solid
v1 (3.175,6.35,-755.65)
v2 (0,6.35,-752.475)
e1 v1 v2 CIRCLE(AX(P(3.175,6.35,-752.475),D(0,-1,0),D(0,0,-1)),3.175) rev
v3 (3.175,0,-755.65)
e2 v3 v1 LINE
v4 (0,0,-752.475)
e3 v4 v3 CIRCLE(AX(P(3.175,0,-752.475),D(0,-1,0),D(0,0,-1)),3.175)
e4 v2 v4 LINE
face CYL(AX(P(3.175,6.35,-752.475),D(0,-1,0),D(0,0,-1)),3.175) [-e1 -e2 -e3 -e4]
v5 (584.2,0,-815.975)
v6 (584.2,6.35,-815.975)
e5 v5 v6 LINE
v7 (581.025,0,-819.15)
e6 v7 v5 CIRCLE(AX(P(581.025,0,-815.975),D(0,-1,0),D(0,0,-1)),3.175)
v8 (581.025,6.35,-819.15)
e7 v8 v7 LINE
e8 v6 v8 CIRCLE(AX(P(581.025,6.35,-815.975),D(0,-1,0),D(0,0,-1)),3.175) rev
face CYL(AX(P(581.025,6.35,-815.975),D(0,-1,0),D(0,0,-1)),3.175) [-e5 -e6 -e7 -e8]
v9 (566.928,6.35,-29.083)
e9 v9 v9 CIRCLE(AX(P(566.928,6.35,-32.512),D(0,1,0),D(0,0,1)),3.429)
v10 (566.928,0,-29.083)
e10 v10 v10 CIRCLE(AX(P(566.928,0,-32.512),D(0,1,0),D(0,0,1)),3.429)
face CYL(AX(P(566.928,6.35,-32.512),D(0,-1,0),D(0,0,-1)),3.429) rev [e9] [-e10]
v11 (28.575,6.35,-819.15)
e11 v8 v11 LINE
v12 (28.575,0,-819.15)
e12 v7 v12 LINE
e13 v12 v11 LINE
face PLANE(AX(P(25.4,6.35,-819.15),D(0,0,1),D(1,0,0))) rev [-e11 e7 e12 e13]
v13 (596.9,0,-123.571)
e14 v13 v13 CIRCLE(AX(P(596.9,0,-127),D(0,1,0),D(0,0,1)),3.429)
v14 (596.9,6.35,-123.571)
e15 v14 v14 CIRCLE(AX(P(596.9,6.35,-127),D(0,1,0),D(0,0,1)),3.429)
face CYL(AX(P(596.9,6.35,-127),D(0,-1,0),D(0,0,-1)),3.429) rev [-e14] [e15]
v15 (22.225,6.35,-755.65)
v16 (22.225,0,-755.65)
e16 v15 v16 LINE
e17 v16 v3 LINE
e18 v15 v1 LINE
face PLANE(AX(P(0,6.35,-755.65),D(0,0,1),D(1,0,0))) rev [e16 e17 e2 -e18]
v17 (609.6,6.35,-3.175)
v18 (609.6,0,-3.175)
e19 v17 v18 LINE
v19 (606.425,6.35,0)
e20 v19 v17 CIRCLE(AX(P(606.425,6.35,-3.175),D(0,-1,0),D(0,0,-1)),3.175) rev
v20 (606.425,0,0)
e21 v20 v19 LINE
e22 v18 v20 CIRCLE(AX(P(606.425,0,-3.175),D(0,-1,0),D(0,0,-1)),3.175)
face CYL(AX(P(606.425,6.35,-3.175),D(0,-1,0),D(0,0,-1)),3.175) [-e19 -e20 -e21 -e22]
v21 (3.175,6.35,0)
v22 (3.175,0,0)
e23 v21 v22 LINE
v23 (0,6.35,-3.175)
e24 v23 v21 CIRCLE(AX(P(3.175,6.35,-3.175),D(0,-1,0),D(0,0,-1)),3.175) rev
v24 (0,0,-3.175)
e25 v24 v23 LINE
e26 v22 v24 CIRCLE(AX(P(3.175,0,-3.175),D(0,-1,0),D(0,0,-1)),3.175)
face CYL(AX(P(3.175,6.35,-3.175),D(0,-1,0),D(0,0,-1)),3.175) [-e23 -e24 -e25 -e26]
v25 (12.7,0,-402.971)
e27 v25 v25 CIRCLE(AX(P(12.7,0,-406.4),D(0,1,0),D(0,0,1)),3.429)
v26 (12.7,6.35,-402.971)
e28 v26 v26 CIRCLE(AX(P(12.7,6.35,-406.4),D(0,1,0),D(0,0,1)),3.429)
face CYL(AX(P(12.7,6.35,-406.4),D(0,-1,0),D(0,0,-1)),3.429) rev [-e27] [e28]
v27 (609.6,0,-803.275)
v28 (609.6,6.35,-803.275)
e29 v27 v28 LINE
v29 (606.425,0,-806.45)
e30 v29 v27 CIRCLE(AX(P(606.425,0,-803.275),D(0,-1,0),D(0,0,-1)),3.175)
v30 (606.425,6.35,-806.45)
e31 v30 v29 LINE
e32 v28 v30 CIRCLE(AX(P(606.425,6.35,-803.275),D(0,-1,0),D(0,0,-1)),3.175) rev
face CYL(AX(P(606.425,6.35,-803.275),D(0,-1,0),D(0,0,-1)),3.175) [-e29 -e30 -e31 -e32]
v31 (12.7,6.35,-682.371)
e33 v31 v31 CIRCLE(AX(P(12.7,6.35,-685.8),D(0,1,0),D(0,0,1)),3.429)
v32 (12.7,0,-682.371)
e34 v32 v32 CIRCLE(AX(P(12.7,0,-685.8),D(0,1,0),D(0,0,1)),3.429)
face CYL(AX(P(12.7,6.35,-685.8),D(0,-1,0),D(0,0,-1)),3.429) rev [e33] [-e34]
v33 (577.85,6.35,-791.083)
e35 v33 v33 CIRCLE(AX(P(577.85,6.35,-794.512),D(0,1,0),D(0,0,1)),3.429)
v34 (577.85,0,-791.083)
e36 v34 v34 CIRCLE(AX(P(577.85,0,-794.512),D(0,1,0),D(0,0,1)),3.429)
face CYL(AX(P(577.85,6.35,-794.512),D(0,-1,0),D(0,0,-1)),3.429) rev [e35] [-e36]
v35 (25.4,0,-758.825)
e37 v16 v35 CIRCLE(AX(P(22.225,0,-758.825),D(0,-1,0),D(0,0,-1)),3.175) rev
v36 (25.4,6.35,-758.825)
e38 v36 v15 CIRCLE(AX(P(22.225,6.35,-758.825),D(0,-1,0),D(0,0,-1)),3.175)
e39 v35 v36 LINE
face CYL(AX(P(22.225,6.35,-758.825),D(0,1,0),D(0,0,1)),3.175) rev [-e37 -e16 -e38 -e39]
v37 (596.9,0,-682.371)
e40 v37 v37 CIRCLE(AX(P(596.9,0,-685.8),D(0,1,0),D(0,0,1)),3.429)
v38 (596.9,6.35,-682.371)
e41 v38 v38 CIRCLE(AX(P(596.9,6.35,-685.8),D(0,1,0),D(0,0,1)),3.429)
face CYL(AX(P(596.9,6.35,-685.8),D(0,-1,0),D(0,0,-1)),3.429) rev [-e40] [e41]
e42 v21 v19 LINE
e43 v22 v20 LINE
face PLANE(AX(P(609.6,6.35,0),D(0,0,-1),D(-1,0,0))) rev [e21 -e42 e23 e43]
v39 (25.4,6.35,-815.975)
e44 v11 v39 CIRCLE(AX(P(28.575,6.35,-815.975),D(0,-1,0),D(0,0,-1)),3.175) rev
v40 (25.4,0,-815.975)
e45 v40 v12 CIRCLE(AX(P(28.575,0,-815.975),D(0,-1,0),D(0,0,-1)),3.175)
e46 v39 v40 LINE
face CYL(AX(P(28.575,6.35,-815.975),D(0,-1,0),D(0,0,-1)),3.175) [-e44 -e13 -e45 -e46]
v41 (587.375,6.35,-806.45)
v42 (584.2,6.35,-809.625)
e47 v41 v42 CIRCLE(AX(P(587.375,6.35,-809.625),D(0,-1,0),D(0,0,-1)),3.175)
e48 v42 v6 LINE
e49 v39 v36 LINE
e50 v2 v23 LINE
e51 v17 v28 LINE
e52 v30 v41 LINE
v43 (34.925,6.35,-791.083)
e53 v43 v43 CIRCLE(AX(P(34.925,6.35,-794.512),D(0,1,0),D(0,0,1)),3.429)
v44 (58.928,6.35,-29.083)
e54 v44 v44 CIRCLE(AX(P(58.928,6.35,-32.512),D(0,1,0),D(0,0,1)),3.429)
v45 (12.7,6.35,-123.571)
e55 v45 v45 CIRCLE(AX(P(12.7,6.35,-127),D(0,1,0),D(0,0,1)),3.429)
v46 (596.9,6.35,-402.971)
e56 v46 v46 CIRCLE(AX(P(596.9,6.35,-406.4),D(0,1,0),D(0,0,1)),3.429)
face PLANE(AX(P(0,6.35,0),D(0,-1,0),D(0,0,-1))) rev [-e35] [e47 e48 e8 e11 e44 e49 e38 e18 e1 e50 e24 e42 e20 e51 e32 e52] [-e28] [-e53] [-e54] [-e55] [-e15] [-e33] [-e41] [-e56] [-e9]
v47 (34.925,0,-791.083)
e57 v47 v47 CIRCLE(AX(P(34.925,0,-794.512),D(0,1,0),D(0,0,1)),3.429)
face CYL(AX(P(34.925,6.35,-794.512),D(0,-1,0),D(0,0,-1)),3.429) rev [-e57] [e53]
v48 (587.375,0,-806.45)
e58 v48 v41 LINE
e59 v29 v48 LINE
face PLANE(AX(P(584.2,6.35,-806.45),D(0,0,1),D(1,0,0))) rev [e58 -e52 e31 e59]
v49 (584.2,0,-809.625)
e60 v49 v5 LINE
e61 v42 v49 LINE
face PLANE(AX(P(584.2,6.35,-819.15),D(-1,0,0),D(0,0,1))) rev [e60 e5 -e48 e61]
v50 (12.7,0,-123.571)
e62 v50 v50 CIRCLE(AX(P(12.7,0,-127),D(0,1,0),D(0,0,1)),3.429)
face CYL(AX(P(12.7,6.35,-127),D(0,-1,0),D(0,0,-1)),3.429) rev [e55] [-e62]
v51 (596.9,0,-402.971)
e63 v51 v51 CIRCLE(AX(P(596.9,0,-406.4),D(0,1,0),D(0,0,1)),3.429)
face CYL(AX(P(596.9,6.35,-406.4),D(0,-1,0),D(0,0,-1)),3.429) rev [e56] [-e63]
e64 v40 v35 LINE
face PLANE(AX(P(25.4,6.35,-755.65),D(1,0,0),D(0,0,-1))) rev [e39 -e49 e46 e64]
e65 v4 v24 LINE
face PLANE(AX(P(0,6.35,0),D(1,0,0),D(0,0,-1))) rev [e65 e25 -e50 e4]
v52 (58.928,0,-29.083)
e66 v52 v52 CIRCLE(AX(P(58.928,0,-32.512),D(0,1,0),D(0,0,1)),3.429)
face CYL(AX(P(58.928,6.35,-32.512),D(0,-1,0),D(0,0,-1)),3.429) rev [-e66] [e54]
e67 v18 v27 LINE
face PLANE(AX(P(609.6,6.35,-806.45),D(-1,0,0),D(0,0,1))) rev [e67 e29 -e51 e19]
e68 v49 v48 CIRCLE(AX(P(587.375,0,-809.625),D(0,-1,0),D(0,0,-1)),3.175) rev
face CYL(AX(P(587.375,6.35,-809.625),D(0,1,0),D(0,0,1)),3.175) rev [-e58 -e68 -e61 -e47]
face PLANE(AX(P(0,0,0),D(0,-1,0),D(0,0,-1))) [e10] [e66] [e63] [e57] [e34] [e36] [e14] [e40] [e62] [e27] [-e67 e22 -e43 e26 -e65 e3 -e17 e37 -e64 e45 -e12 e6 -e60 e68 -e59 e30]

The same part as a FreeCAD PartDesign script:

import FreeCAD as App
import Part
import Sketcher
from FreeCAD import Vector
Q = App.Units.Quantity


def edges_at(feature, points):
    """Names of the edges that pass closest to the given points."""
    edges = feature.Shape.Edges
    near = lambda p: min(range(len(edges)), key=lambda i: edges[i].distToShape(Part.Vertex(*p))[0])
    return sorted({f"Edge{near(p) + 1}" for p in points})

doc = App.newDocument("Part")
params = doc.addObject("Spreadsheet::Sheet", "Params")
for row, (alias, value) in enumerate([
    ("sketch1_diameter", "0.27 in"),
    ("sketch1_width", "24 in"),
    ("sketch1_width2", "1 in"),
    ("sketch1_height", "0.5 in"),
    ("sketch1_height2", "2.5 in"),
    ("pad1_length", "0.25 in"),
    ("fillet_radius", "0.125 in"),
], start=1):
    params.set(f"A{row}", alias)
    params.set(f"B{row}", "=" + value)
    params.setAlias(f"B{row}", alias)

body = doc.addObject("PartDesign::Body", "Body")

sketch1 = doc.addObject("Sketcher::SketchObject", "Sketch")
body.addObject(sketch1)
sketch1.AttachmentSupport = (doc.XZ_Plane, [""])
sketch1.MapMode = "FlatFace"
sketch1.addGeometry(Part.LineSegment(Vector(0, -755.6, 0), Vector(0, 0, 0)), False)
sketch1.addGeometry(Part.LineSegment(Vector(0, 0, 0), Vector(609.6, 0, 0)), False)
sketch1.addGeometry(Part.LineSegment(Vector(609.6, 0, 0), Vector(609.6, -806.5, 0)), False)
sketch1.addGeometry(Part.LineSegment(Vector(609.6, -806.5, 0), Vector(584.2, -806.5, 0)), False)
sketch1.addGeometry(Part.LineSegment(Vector(584.2, -806.5, 0), Vector(584.2, -819.1, 0)), False)
sketch1.addGeometry(Part.LineSegment(Vector(584.2, -819.1, 0), Vector(25.4, -819.1, 0)), False)
sketch1.addGeometry(Part.LineSegment(Vector(25.4, -819.1, 0), Vector(25.4, -755.6, 0)), False)
sketch1.addGeometry(Part.LineSegment(Vector(25.4, -755.6, 0), Vector(0, -755.6, 0)), False)
sketch1.addGeometry(Part.Circle(Vector(566.9, -32.5, 0), Vector(0, 0, 1), 3.4), False)
sketch1.addGeometry(Part.Circle(Vector(596.9, -127, 0), Vector(0, 0, 1), 3.4), False)
sketch1.addGeometry(Part.Circle(Vector(596.9, -406.4, 0), Vector(0, 0, 1), 3.4), False)
sketch1.addGeometry(Part.Circle(Vector(58.9, -32.5, 0), Vector(0, 0, 1), 3.4), False)
sketch1.addGeometry(Part.Circle(Vector(12.7, -127, 0), Vector(0, 0, 1), 3.4), False)
sketch1.addGeometry(Part.Circle(Vector(12.7, -406.4, 0), Vector(0, 0, 1), 3.4), False)
sketch1.addGeometry(Part.Circle(Vector(596.9, -685.8, 0), Vector(0, 0, 1), 3.4), False)
sketch1.addGeometry(Part.Circle(Vector(577.9, -794.5, 0), Vector(0, 0, 1), 3.4), False)
sketch1.addGeometry(Part.Circle(Vector(12.7, -685.8, 0), Vector(0, 0, 1), 3.4), False)
sketch1.addGeometry(Part.Circle(Vector(34.9, -794.5, 0), Vector(0, 0, 1), 3.4), False)
sketch1.addConstraint(Sketcher.Constraint("Coincident", 0, 2, 1, 1))
sketch1.addConstraint(Sketcher.Constraint("Coincident", 1, 2, 2, 1))
sketch1.addConstraint(Sketcher.Constraint("Coincident", 2, 2, 3, 1))
sketch1.addConstraint(Sketcher.Constraint("Coincident", 3, 2, 4, 1))
sketch1.addConstraint(Sketcher.Constraint("Coincident", 4, 2, 5, 1))
sketch1.addConstraint(Sketcher.Constraint("Coincident", 5, 2, 6, 1))
sketch1.addConstraint(Sketcher.Constraint("Coincident", 6, 2, 7, 1))
sketch1.addConstraint(Sketcher.Constraint("Coincident", 7, 2, 0, 1))
sketch1.addConstraint(Sketcher.Constraint("Vertical", 0))
sketch1.addConstraint(Sketcher.Constraint("Horizontal", 1))
sketch1.addConstraint(Sketcher.Constraint("Vertical", 2))
sketch1.addConstraint(Sketcher.Constraint("Horizontal", 3))
sketch1.addConstraint(Sketcher.Constraint("Vertical", 4))
sketch1.addConstraint(Sketcher.Constraint("Horizontal", 5))
sketch1.addConstraint(Sketcher.Constraint("Vertical", 6))
sketch1.addConstraint(Sketcher.Constraint("Horizontal", 7))
sketch1.addConstraint(Sketcher.Constraint("Coincident", 0, 2, -1, 1))
sketch1.addConstraint(Sketcher.Constraint("Equal", 8, 9))
sketch1.addConstraint(Sketcher.Constraint("Equal", 9, 10))
sketch1.addConstraint(Sketcher.Constraint("Equal", 10, 11))
sketch1.addConstraint(Sketcher.Constraint("Equal", 11, 12))
sketch1.addConstraint(Sketcher.Constraint("Equal", 12, 13))
sketch1.addConstraint(Sketcher.Constraint("Equal", 13, 14))
sketch1.addConstraint(Sketcher.Constraint("Equal", 14, 15))
sketch1.addConstraint(Sketcher.Constraint("Equal", 15, 16))
sketch1.addConstraint(Sketcher.Constraint("Equal", 16, 17))
sketch1.addConstraint(Sketcher.Constraint("Horizontal", 8, 3, 11, 3))
sketch1.addConstraint(Sketcher.Constraint("Horizontal", 9, 3, 12, 3))
sketch1.addConstraint(Sketcher.Constraint("Horizontal", 10, 3, 13, 3))
sketch1.addConstraint(Sketcher.Constraint("Horizontal", 14, 3, 16, 3))
sketch1.addConstraint(Sketcher.Constraint("Horizontal", 15, 3, 17, 3))
sketch1.addConstraint(Sketcher.Constraint("Vertical", 9, 3, 10, 3))
sketch1.addConstraint(Sketcher.Constraint("Vertical", 12, 3, 13, 3))
sketch1.addConstraint(Sketcher.Constraint("Vertical", 10, 3, 14, 3))
sketch1.addConstraint(Sketcher.Constraint("Vertical", 13, 3, 16, 3))
sketch1.addConstraint(Sketcher.Constraint("Equal", 3, 7))
sketch1.addConstraint(Sketcher.Constraint("Diameter", 8, Q("0.27 in")))
sketch1.addConstraint(Sketcher.Constraint("DistanceX", 1, 1, 1, 2, Q("24 in")))
sketch1.addConstraint(Sketcher.Constraint("DistanceX", 3, 2, 3, 1, Q("1 in")))
sketch1.addConstraint(Sketcher.Constraint("DistanceY", 4, 2, 4, 1, Q("0.5 in")))
sketch1.addConstraint(Sketcher.Constraint("DistanceY", 6, 1, 6, 2, Q("2.5 in")))
sketch1.addConstraint(Sketcher.Constraint("DistanceY", 9, 3, -1, 1, Q("5 in")))
sketch1.addConstraint(Sketcher.Constraint("DistanceY", 10, 3, -1, 1, Q("16 in")))
sketch1.addConstraint(Sketcher.Constraint("DistanceY", 14, 3, -1, 1, Q("27 in")))
sketch1.addConstraint(Sketcher.Constraint("DistanceX", 11, 3, 8, 3, Q("20 in")))
sketch1.addConstraint(Sketcher.Constraint("DistanceX", 12, 3, 9, 3, Q("23 in")))
sketch1.addConstraint(Sketcher.Constraint("DistanceY", 15, 3, 8, 3, Q("30 in")))
sketch1.addConstraint(Sketcher.Constraint("DistanceY", 0, 1, 0, 2, Q("29.75 in")))
sketch1.addConstraint(Sketcher.Constraint("DistanceX", -1, 1, 9, 3, Q("23.5 in")))
sketch1.addConstraint(Sketcher.Constraint("DistanceX", -1, 1, 8, 3, Q("22.32 in")))
sketch1.addConstraint(Sketcher.Constraint("DistanceY", 8, 3, -1, 1, Q("1.28 in")))
sketch1.addConstraint(Sketcher.Constraint("DistanceX", -1, 1, 15, 3, Q("22.75 in")))
sketch1.addConstraint(Sketcher.Constraint("DistanceX", -1, 1, 17, 3, Q("1.375 in")))
sketch1.setExpression("Constraints[36]", "Params.sketch1_diameter")
sketch1.setExpression("Constraints[37]", "Params.sketch1_width")
sketch1.setExpression("Constraints[38]", "Params.sketch1_width2")
sketch1.setExpression("Constraints[39]", "Params.sketch1_height")
sketch1.setExpression("Constraints[40]", "Params.sketch1_height2")
pad1 = doc.addObject("PartDesign::Pad", "Pad")
body.addObject(pad1)
pad1.Profile = sketch1
pad1.setExpression("Length", "Params.pad1_length")
pad1.Reversed = True
doc.recompute()

fillet = doc.addObject("PartDesign::Fillet", "Fillet")
body.addObject(fillet)
fillet.Base = (pad1, edges_at(pad1, [
    (0, 3.175, 0),
    (0, 3.175, -755.65),
    (25.4, 3.175, -755.65),
    (25.4, 3.175, -819.15),
    (584.2, 3.175, -819.15),
    (584.2, 3.175, -806.45),
    (609.6, 3.175, -806.45),
    (609.6, 3.175, 0),
]))
fillet.setExpression("Radius", "Params.fillet_radius")

doc.recompute()
